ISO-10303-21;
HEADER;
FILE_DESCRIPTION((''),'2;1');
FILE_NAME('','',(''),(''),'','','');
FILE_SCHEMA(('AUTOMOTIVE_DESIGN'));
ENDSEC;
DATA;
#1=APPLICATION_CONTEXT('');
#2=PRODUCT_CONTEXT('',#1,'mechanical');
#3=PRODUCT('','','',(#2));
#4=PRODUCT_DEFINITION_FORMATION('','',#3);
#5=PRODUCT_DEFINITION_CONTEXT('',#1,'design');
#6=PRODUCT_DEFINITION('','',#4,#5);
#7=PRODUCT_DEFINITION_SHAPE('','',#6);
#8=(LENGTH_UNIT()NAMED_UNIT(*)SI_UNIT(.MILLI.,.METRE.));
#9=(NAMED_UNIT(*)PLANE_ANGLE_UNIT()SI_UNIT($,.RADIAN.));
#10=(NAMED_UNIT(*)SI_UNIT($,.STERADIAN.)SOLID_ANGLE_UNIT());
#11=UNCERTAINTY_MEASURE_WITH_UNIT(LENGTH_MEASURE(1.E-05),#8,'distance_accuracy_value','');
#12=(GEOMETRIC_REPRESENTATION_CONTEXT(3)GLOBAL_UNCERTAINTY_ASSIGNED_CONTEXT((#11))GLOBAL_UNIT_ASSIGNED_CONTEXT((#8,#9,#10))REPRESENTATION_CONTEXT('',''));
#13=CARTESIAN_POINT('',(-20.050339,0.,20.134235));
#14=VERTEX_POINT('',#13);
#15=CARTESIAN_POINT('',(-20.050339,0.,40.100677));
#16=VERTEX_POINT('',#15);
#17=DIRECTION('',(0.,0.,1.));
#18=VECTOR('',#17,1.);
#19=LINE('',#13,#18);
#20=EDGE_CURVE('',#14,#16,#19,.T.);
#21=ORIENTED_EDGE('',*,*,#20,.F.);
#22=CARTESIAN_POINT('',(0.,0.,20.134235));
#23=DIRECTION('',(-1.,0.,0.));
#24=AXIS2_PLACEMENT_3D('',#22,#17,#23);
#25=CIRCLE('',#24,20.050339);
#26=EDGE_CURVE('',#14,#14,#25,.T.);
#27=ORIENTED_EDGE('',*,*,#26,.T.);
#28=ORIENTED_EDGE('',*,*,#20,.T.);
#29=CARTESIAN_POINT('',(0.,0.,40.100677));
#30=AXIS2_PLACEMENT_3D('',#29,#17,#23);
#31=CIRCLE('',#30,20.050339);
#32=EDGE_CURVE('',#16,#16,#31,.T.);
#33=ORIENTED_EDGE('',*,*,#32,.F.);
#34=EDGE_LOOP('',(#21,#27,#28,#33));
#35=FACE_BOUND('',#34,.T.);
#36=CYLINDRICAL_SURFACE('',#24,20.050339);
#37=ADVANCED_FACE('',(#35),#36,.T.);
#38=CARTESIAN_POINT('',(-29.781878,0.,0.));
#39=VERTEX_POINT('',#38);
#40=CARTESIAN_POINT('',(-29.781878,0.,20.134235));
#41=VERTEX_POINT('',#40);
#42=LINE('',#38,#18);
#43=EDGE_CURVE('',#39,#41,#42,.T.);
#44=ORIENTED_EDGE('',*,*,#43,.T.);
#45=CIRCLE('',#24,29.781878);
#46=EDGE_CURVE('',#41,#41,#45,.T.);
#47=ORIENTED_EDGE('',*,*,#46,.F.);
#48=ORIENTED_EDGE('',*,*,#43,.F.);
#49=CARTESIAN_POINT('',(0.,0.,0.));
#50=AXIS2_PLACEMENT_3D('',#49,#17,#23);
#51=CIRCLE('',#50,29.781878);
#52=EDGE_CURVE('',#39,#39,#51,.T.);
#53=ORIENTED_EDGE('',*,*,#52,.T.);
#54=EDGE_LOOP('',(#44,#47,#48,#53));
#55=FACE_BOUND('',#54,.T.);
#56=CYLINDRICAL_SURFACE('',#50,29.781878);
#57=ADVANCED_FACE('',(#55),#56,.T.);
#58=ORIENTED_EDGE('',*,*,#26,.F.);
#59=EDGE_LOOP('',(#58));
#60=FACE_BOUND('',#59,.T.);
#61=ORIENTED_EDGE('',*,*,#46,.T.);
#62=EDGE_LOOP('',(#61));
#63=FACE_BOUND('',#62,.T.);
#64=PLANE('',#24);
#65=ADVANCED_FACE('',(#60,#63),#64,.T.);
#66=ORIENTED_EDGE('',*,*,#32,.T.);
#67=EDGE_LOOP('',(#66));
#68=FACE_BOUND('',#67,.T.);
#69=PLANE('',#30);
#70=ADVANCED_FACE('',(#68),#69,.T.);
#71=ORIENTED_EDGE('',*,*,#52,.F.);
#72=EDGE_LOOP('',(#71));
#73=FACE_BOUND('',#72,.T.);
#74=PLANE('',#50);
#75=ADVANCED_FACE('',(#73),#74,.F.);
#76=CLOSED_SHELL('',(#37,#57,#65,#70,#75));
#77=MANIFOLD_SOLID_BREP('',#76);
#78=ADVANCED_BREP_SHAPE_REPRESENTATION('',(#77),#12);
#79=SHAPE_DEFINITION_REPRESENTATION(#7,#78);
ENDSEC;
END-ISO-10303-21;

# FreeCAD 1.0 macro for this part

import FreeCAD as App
import Part
import Sketcher
from FreeCAD import Vector
Q = App.Units.Quantity

doc = App.newDocument("Part")
body = doc.addObject("PartDesign::Body", "Body")

# Sketch on XZ plane
sketch1 = doc.addObject("Sketcher::SketchObject", "Sketch")
body.addObject(sketch1)
sketch1.AttachmentSupport = (doc.XZ_Plane, [""])
sketch1.MapMode = "FlatFace"
sketch1.addGeometry([
    Part.LineSegment(Vector(-30, 0, 0), Vector(0, 0, 0)),  # 0
    Part.LineSegment(Vector(0, 0, 0), Vector(0, 40, 0)),  # 1
    Part.LineSegment(Vector(0, 40, 0), Vector(-20, 40, 0)),  # 2
    Part.LineSegment(Vector(-20, 40, 0), Vector(-20, 20, 0)),  # 3
    Part.LineSegment(Vector(-20, 20, 0), Vector(-30, 20, 0)),  # 4
    Part.LineSegment(Vector(-30, 20, 0), Vector(-30, 0, 0)),  # 5
], False)
sketch1.addConstraint([
    Sketcher.Constraint("Coincident", 0, 2, 1, 1),
    Sketcher.Constraint("Coincident", 1, 2, 2, 1),
    Sketcher.Constraint("Coincident", 2, 2, 3, 1),
    Sketcher.Constraint("Coincident", 3, 2, 4, 1),
    Sketcher.Constraint("Coincident", 4, 2, 5, 1),
    Sketcher.Constraint("Coincident", 5, 2, 0, 1),
    Sketcher.Constraint("Horizontal", 0),
    Sketcher.Constraint("Vertical", 1),
    Sketcher.Constraint("Horizontal", 2),
    Sketcher.Constraint("Vertical", 3),
    Sketcher.Constraint("Horizontal", 4),
    Sketcher.Constraint("Vertical", 5),
    Sketcher.Constraint("Coincident", 0, 2, -1, 1),
    Sketcher.Constraint("DistanceX", 2, 2, 2, 1, Q("20.050339 mm")),
    Sketcher.Constraint("DistanceX", 4, 2, 4, 1, Q("9.731539 mm")),
    Sketcher.Constraint("DistanceY", 3, 2, 3, 1, Q("19.966442 mm")),
    Sketcher.Constraint("DistanceY", 1, 1, 1, 2, Q("40.100677 mm")),
])
revolution = doc.addObject("PartDesign::Revolution", "Revolution")
body.addObject(revolution)
revolution.Profile = sketch1
revolution.ReferenceAxis = (sketch1, ["V_Axis"])
revolution.Angle = 360

doc.recompute()
